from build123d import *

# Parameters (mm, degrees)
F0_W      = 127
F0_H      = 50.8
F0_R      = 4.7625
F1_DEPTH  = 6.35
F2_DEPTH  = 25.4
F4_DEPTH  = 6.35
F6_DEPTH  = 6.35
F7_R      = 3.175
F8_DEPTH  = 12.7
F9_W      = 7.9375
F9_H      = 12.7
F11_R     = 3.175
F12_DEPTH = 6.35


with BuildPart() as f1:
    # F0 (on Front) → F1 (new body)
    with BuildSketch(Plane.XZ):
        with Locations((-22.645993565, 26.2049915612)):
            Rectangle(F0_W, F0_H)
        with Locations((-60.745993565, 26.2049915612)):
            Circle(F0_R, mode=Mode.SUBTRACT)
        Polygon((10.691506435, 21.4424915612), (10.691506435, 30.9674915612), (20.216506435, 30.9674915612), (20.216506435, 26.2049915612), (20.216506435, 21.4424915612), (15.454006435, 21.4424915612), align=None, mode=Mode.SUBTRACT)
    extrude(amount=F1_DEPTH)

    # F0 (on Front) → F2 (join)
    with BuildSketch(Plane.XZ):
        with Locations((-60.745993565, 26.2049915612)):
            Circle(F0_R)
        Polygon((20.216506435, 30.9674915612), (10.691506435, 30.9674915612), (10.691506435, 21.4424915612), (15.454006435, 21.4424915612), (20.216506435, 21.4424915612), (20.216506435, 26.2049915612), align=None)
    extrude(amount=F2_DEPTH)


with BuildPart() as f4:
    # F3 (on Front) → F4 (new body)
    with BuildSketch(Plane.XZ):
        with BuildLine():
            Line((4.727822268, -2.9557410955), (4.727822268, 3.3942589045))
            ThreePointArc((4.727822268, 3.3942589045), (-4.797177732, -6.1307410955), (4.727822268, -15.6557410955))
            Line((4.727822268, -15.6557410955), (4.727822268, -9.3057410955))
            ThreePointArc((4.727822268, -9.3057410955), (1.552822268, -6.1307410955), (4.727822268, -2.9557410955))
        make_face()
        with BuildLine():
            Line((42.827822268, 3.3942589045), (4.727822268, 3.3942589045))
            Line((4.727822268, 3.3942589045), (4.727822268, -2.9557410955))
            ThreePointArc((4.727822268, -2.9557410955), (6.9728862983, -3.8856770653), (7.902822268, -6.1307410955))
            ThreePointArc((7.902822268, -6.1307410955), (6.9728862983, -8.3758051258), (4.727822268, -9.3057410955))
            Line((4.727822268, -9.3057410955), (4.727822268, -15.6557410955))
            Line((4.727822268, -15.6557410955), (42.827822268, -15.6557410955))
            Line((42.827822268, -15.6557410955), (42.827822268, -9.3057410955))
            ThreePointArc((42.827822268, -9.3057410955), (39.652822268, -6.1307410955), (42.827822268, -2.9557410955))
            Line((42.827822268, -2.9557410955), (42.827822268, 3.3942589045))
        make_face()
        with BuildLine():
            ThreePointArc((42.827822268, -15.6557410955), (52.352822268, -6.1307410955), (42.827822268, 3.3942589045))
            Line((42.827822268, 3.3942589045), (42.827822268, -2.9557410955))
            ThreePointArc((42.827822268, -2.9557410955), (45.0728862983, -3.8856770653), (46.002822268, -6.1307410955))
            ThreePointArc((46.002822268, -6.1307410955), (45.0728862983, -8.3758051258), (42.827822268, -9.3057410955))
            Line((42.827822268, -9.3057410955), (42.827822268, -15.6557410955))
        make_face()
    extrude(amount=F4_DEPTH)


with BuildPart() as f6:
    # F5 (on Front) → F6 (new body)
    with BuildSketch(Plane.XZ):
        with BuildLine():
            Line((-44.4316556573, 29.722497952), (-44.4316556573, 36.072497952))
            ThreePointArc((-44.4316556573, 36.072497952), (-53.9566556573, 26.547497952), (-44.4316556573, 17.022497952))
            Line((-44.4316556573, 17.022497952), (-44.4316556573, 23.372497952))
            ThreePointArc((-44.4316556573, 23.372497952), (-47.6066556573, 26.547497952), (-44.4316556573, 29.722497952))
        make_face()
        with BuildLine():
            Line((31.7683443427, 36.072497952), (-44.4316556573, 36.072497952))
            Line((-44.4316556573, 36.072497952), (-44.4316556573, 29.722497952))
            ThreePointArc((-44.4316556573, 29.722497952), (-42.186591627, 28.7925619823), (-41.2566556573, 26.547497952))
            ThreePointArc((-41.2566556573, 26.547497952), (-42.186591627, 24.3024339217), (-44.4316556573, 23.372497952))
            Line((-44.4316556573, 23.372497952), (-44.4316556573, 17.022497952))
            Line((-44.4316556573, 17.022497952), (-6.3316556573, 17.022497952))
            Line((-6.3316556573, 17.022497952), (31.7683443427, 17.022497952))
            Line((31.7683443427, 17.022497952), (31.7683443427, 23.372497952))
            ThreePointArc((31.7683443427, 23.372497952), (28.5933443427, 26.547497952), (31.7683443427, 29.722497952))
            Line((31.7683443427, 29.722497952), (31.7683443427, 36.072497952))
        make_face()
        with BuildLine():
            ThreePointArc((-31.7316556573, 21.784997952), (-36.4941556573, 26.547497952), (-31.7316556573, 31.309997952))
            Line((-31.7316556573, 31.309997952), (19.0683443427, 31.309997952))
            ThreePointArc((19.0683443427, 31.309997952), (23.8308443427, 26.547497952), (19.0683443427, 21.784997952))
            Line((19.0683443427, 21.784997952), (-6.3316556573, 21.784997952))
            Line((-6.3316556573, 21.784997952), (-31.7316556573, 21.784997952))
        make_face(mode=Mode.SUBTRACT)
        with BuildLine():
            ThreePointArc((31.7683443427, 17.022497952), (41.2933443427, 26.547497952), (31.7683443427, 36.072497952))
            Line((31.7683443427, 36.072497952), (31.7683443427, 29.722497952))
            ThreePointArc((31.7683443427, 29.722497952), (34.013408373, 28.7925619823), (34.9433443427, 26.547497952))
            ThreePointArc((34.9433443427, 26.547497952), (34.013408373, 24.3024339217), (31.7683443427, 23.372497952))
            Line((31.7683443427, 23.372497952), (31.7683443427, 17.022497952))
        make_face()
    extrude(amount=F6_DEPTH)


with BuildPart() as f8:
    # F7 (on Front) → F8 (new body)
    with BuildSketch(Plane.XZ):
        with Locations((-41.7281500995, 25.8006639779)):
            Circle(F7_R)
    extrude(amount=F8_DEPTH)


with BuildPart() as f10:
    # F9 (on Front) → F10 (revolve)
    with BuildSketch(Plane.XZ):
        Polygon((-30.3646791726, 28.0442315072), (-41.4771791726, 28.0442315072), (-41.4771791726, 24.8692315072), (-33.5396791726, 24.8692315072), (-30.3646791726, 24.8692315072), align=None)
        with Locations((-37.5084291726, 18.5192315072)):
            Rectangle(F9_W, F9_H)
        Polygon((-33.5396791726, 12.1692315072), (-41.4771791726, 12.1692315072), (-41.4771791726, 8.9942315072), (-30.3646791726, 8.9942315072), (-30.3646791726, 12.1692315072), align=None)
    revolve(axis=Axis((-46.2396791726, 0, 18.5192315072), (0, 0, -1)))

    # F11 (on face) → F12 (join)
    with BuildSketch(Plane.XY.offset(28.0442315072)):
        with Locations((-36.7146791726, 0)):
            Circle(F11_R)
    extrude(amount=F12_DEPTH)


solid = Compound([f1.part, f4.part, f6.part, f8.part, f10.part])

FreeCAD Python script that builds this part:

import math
import FreeCAD as App
import Part
import Sketcher

V = App.Vector
Q = App.Units.Quantity

doc = App.newDocument("Part")
body = doc.addObject("PartDesign::Body", "Body")

# Sketch on XZ plane
sketch1 = body.newObject("Sketcher::SketchObject", "Sketch")
sketch1.AttachmentSupport = (doc.getObject("XZ_Plane"), [""])
sketch1.MapMode = "FlatFace"
sketch1.addGeometry(Part.LineSegment(V(-86.1, 51.6, 0), V(-86.1, 0.8, 0)), False)
sketch1.addGeometry(Part.LineSegment(V(-86.1, 0.8, 0), V(40.9, 0.8, 0)), False)
sketch1.addGeometry(Part.LineSegment(V(40.9, 0.8, 0), V(40.9, 51.6, 0)), False)
sketch1.addGeometry(Part.LineSegment(V(40.9, 51.6, 0), V(-86.1, 51.6, 0)), False)
sketch1.addGeometry(Part.Circle(V(-60.7, 26.2, 0), V(0, 0, 1), 4.8), False)
sketch1.addGeometry(Part.LineSegment(V(20.2, 21.4, 0), V(10.7, 21.4, 0)), False)
sketch1.addGeometry(Part.LineSegment(V(10.7, 21.4, 0), V(10.7, 31, 0)), False)
sketch1.addGeometry(Part.LineSegment(V(10.7, 31, 0), V(20.2, 31, 0)), False)
sketch1.addGeometry(Part.LineSegment(V(20.2, 31, 0), V(20.2, 21.4, 0)), False)
sketch1.addConstraint(Sketcher.Constraint("Coincident", 0, 2, 1, 1))
sketch1.addConstraint(Sketcher.Constraint("Coincident", 1, 2, 2, 1))
sketch1.addConstraint(Sketcher.Constraint("Coincident", 2, 2, 3, 1))
sketch1.addConstraint(Sketcher.Constraint("Coincident", 3, 2, 0, 1))
sketch1.addConstraint(Sketcher.Constraint("Coincident", 5, 2, 6, 1))
sketch1.addConstraint(Sketcher.Constraint("Coincident", 6, 2, 7, 1))
sketch1.addConstraint(Sketcher.Constraint("Coincident", 7, 2, 8, 1))
sketch1.addConstraint(Sketcher.Constraint("Coincident", 8, 2, 5, 1))
sketch1.addConstraint(Sketcher.Constraint("Vertical", 0))
sketch1.addConstraint(Sketcher.Constraint("Horizontal", 1))
sketch1.addConstraint(Sketcher.Constraint("Vertical", 2))
sketch1.addConstraint(Sketcher.Constraint("Horizontal", 3))
sketch1.addConstraint(Sketcher.Constraint("Horizontal", 5))
sketch1.addConstraint(Sketcher.Constraint("Vertical", 6))
sketch1.addConstraint(Sketcher.Constraint("Horizontal", 7))
sketch1.addConstraint(Sketcher.Constraint("Vertical", 8))
sketch1.addConstraint(Sketcher.Constraint("Equal", 7, 6))
sketch1.addConstraint(Sketcher.Constraint("DistanceX", 1, 1, 1, 2, Q("5 in")))
sketch1.addConstraint(Sketcher.Constraint("DistanceY", 0, 2, 0, 1, Q("2 in")))
sketch1.addConstraint(Sketcher.Constraint("Diameter", 4, Q("0.375 in")))
sketch1.addConstraint(Sketcher.Constraint("DistanceX", 0, 2, 4, 3, Q("1 in")))
sketch1.addConstraint(Sketcher.Constraint("DistanceY", 0, 2, 4, 3, Q("1 in")))
sketch1.addConstraint(Sketcher.Constraint("DistanceX", 5, 2, 5, 1, Q("0.375 in")))
sketch1.addConstraint(Sketcher.Constraint("DistanceX", 5, 2, 1, 2, Q("1.1875 in")))
sketch1.addConstraint(Sketcher.Constraint("DistanceY", 1, 2, 5, 2, Q("0.8125 in")))
sketch1.addConstraint(Sketcher.Constraint("DistanceY", -1, 1, 4, 3, 26.204992))
sketch1.addConstraint(Sketcher.Constraint("DistanceX", 4, 3, -1, 1, 60.745994))
pad1 = body.newObject("PartDesign::Pad", "Pad")
pad1.Profile = sketch1
pad1.Length = Q("0.25 in")

# Sketch on XZ plane
sketch2 = body.newObject("Sketcher::SketchObject", "Sketch001")
sketch2.AttachmentSupport = (doc.getObject("XZ_Plane"), [""])
sketch2.MapMode = "FlatFace"
sketch2.addGeometry(Part.Circle(V(-60.7, 26.2, 0), V(0, 0, 1), 4.8), False)
sketch2.addGeometry(Part.LineSegment(V(20.2, 31, 0), V(10.7, 31, 0)), False)
sketch2.addGeometry(Part.LineSegment(V(10.7, 31, 0), V(10.7, 21.4, 0)), False)
sketch2.addGeometry(Part.LineSegment(V(10.7, 21.4, 0), V(20.2, 21.4, 0)), False)
sketch2.addGeometry(Part.LineSegment(V(20.2, 21.4, 0), V(20.2, 31, 0)), False)
sketch2.addConstraint(Sketcher.Constraint("Coincident", 1, 2, 2, 1))
sketch2.addConstraint(Sketcher.Constraint("Coincident", 2, 2, 3, 1))
sketch2.addConstraint(Sketcher.Constraint("Coincident", 3, 2, 4, 1))
sketch2.addConstraint(Sketcher.Constraint("Coincident", 4, 2, 1, 1))
sketch2.addConstraint(Sketcher.Constraint("Horizontal", 1))
sketch2.addConstraint(Sketcher.Constraint("Vertical", 2))
sketch2.addConstraint(Sketcher.Constraint("Horizontal", 3))
sketch2.addConstraint(Sketcher.Constraint("Vertical", 4))
sketch2.addConstraint(Sketcher.Constraint("Equal", 3, 2))
sketch2.addConstraint(Sketcher.Constraint("Diameter", 0, Q("0.375 in")))
sketch2.addConstraint(Sketcher.Constraint("DistanceX", 1, 2, 1, 1, Q("0.375 in")))
sketch2.addConstraint(Sketcher.Constraint("DistanceX", 0, 3, 1, 2, Q("2.8125 in")))
sketch2.addConstraint(Sketcher.Constraint("DistanceY", 0, 3, 1, 2, Q("0.1875 in")))
sketch2.addConstraint(Sketcher.Constraint("DistanceY", -1, 1, 0, 3, 26.204992))
sketch2.addConstraint(Sketcher.Constraint("DistanceX", 0, 3, -1, 1, 60.745994))
pad2 = body.newObject("PartDesign::Pad", "Pad001")
pad2.Profile = sketch2
pad2.Length = Q("1 in")
body2 = doc.addObject("PartDesign::Body", "Body001")

# Sketch on XZ plane
sketch3 = body2.newObject("Sketcher::SketchObject", "Sketch002")
sketch3.AttachmentSupport = (doc.getObject("XZ_Plane001"), [""])
sketch3.MapMode = "FlatFace"
sketch3.addGeometry(Part.ArcOfCircle(Part.Circle(V(4.7, -6.1, 0), V(0, 0, 1), 9.5), math.radians(90), math.radians(270)), False)
sketch3.addGeometry(Part.LineSegment(V(4.7, -15.7, 0), V(42.8, -15.7, 0)), False)
sketch3.addGeometry(Part.ArcOfCircle(Part.Circle(V(42.8, -6.1, 0), V(0, 0, 1), 9.5), math.radians(-90), math.radians(90)), False)
sketch3.addGeometry(Part.LineSegment(V(42.8, 3.4, 0), V(4.7, 3.4, 0)), False)
sketch3.addGeometry(Part.ArcOfCircle(Part.Circle(V(42.8, -6.1, 0), V(0, 0, 1), 3.2), math.radians(90), math.radians(270)), False)
sketch3.addGeometry(Part.ArcOfCircle(Part.Circle(V(42.8, -6.1, 0), V(0, 0, 1), 3.2), math.radians(0), math.radians(90)), False)
sketch3.addGeometry(Part.ArcOfCircle(Part.Circle(V(42.8, -6.1, 0), V(0, 0, 1), 3.2), math.radians(-90), math.radians(0)), False)
sketch3.addGeometry(Part.ArcOfCircle(Part.Circle(V(4.7, -6.1, 0), V(0, 0, 1), 3.2), math.radians(90), math.radians(270)), False)
sketch3.addGeometry(Part.ArcOfCircle(Part.Circle(V(4.7, -6.1, 0), V(0, 0, 1), 3.2), math.radians(0), math.radians(90)), False)
sketch3.addGeometry(Part.ArcOfCircle(Part.Circle(V(4.7, -6.1, 0), V(0, 0, 1), 3.2), math.radians(-90), math.radians(0)), False)
sketch3.addConstraint(Sketcher.Constraint("Tangent", 0, 2, 1, 1))
sketch3.addConstraint(Sketcher.Constraint("Tangent", 1, 2, 2, 1))
sketch3.addConstraint(Sketcher.Constraint("Tangent", 2, 2, 3, 1))
sketch3.addConstraint(Sketcher.Constraint("Tangent", 3, 2, 0, 1))
sketch3.addConstraint(Sketcher.Constraint("Tangent", 4, 1, 5, 2))
sketch3.addConstraint(Sketcher.Constraint("Tangent", 5, 1, 6, 2))
sketch3.addConstraint(Sketcher.Constraint("Tangent", 6, 1, 4, 2))
sketch3.addConstraint(Sketcher.Constraint("Tangent", 7, 1, 8, 2))
sketch3.addConstraint(Sketcher.Constraint("Tangent", 8, 1, 9, 2))
sketch3.addConstraint(Sketcher.Constraint("Tangent", 9, 1, 7, 2))
sketch3.addConstraint(Sketcher.Constraint("Horizontal", 1))
sketch3.addConstraint(Sketcher.Constraint("Horizontal", 3))
sketch3.addConstraint(Sketcher.Constraint("Coincident", 4, 3, 2, 3))
sketch3.addConstraint(Sketcher.Constraint("Coincident", 7, 3, 0, 3))
sketch3.addConstraint(Sketcher.Constraint("Equal", 6, 7))
sketch3.addConstraint(Sketcher.Constraint("Horizontal", 9, 3, 5, 1))
sketch3.addConstraint(Sketcher.Constraint("Horizontal", 5, 1, 8, 1))
sketch3.addConstraint(Sketcher.Constraint("Vertical", 2, 2, 4, 1))
sketch3.addConstraint(Sketcher.Constraint("Vertical", 4, 1, 6, 1))
sketch3.addConstraint(Sketcher.Constraint("Vertical", 3, 2, 7, 1))
sketch3.addConstraint(Sketcher.Constraint("Vertical", 7, 1, 9, 1))
sketch3.addConstraint(Sketcher.Constraint("DistanceX", 1, 1, 1, 2, Q("1.5 in")))
sketch3.addConstraint(Sketcher.Constraint("Radius", 0, Q("0.375 in")))
sketch3.addConstraint(Sketcher.Constraint("Radius", 4, Q("0.125 in")))
sketch3.addConstraint(Sketcher.Constraint("DistanceY", 0, 3, -1, 1, 6.130741))
sketch3.addConstraint(Sketcher.Constraint("DistanceX", -1, 1, 0, 3, 4.727822))
pad3 = body2.newObject("PartDesign::Pad", "Pad002")
pad3.Profile = sketch3
pad3.Length = Q("0.25 in")
body3 = doc.addObject("PartDesign::Body", "Body002")

# Sketch on XZ plane
sketch4 = body3.newObject("Sketcher::SketchObject", "Sketch003")
sketch4.AttachmentSupport = (doc.getObject("XZ_Plane002"), [""])
sketch4.MapMode = "FlatFace"
sketch4.addGeometry(Part.ArcOfCircle(Part.Circle(V(-44.4, 26.5, 0), V(0, 0, 1), 9.5), math.radians(90), math.radians(270)), False)
sketch4.addGeometry(Part.LineSegment(V(-44.4, 17, 0), V(31.8, 17, 0)), False)
sketch4.addGeometry(Part.ArcOfCircle(Part.Circle(V(31.8, 26.5, 0), V(0, 0, 1), 9.5), math.radians(-90), math.radians(90)), False)
sketch4.addGeometry(Part.LineSegment(V(31.8, 36.1, 0), V(-44.4, 36.1, 0)), False)
sketch4.addGeometry(Part.ArcOfCircle(Part.Circle(V(31.8, 26.5, 0), V(0, 0, 1), 3.2), math.radians(90), math.radians(270)), False)
sketch4.addGeometry(Part.ArcOfCircle(Part.Circle(V(31.8, 26.5, 0), V(0, 0, 1), 3.2), math.radians(0), math.radians(90)), False)
sketch4.addGeometry(Part.ArcOfCircle(Part.Circle(V(31.8, 26.5, 0), V(0, 0, 1), 3.2), math.radians(-90), math.radians(0)), False)
sketch4.addGeometry(Part.ArcOfCircle(Part.Circle(V(-44.4, 26.5, 0), V(0, 0, 1), 3.2), math.radians(90), math.radians(270)), False)
sketch4.addGeometry(Part.ArcOfCircle(Part.Circle(V(-44.4, 26.5, 0), V(0, 0, 1), 3.2), math.radians(0), math.radians(90)), False)
sketch4.addGeometry(Part.ArcOfCircle(Part.Circle(V(-44.4, 26.5, 0), V(0, 0, 1), 3.2), math.radians(-90), math.radians(0)), False)
sketch4.addGeometry(Part.LineSegment(V(19.1, 21.8, 0), V(-31.7, 21.8, 0)), False)
sketch4.addGeometry(Part.ArcOfCircle(Part.Circle(V(-31.7, 26.5, 0), V(0, 0, 1), 4.8), math.radians(90), math.radians(270)), False)
sketch4.addGeometry(Part.LineSegment(V(-31.7, 31.3, 0), V(19.1, 31.3, 0)), False)
sketch4.addGeometry(Part.ArcOfCircle(Part.Circle(V(19.1, 26.5, 0), V(0, 0, 1), 4.8), math.radians(-90), math.radians(90)), False)
sketch4.addConstraint(Sketcher.Constraint("Tangent", 0, 2, 1, 1))
sketch4.addConstraint(Sketcher.Constraint("Tangent", 1, 2, 2, 1))
sketch4.addConstraint(Sketcher.Constraint("Tangent", 2, 2, 3, 1))
sketch4.addConstraint(Sketcher.Constraint("Tangent", 3, 2, 0, 1))
sketch4.addConstraint(Sketcher.Constraint("Tangent", 4, 1, 5, 2))
sketch4.addConstraint(Sketcher.Constraint("Tangent", 5, 1, 6, 2))
sketch4.addConstraint(Sketcher.Constraint("Tangent", 6, 1, 4, 2))
sketch4.addConstraint(Sketcher.Constraint("Tangent", 7, 1, 8, 2))
sketch4.addConstraint(Sketcher.Constraint("Tangent", 8, 1, 9, 2))
sketch4.addConstraint(Sketcher.Constraint("Tangent", 9, 1, 7, 2))
sketch4.addConstraint(Sketcher.Constraint("Tangent", 10, 2, 11, 2))
sketch4.addConstraint(Sketcher.Constraint("Tangent", 11, 1, 12, 1))
sketch4.addConstraint(Sketcher.Constraint("Tangent", 12, 2, 13, 2))
sketch4.addConstraint(Sketcher.Constraint("Tangent", 13, 1, 10, 1))
sketch4.addConstraint(Sketcher.Constraint("Horizontal", 1))
sketch4.addConstraint(Sketcher.Constraint("Horizontal", 3))
sketch4.addConstraint(Sketcher.Constraint("Horizontal", 10))
sketch4.addConstraint(Sketcher.Constraint("Horizontal", 12))
sketch4.addConstraint(Sketcher.Constraint("Coincident", 4, 3, 2, 3))
sketch4.addConstraint(Sketcher.Constraint("Coincident", 7, 3, 0, 3))
sketch4.addConstraint(Sketcher.Constraint("Equal", 6, 7))
sketch4.addConstraint(Sketcher.Constraint("Horizontal", 9, 3, 11, 3))
sketch4.addConstraint(Sketcher.Constraint("Horizontal", 13, 3, 5, 1))
sketch4.addConstraint(Sketcher.Constraint("Horizontal", 5, 1, 8, 1))
sketch4.addConstraint(Sketcher.Constraint("Vertical", 2, 2, 4, 1))
sketch4.addConstraint(Sketcher.Constraint("Vertical", 4, 1, 6, 1))
sketch4.addConstraint(Sketcher.Constraint("Vertical", 3, 2, 7, 1))
sketch4.addConstraint(Sketcher.Constraint("Vertical", 7, 1, 9, 1))
sketch4.addConstraint(Sketcher.Constraint("DistanceX", 1, 1, 1, 2, Q("3 in")))
sketch4.addConstraint(Sketcher.Constraint("DistanceX", 10, 2, 10, 1, Q("2 in")))
sketch4.addConstraint(Sketcher.Constraint("Radius", 0, Q("0.375 in")))
sketch4.addConstraint(Sketcher.Constraint("Radius", 4, Q("0.125 in")))
sketch4.addConstraint(Sketcher.Constraint("Radius", 11, Q("0.1875 in")))
sketch4.addConstraint(Sketcher.Constraint("DistanceX", 0, 3, 11, 3, Q("0.5 in")))
sketch4.addConstraint(Sketcher.Constraint("DistanceX", 0, 3, -1, 1, 44.431656))
sketch4.addConstraint(Sketcher.Constraint("DistanceY", -1, 1, 0, 3, 26.547498))
pad4 = body3.newObject("PartDesign::Pad", "Pad003")
pad4.Profile = sketch4
pad4.Length = Q("0.25 in")
body4 = doc.addObject("PartDesign::Body", "Body003")

# Sketch on XZ plane
sketch5 = body4.newObject("Sketcher::SketchObject", "Sketch004")
sketch5.AttachmentSupport = (doc.getObject("XZ_Plane003"), [""])
sketch5.MapMode = "FlatFace"
sketch5.addGeometry(Part.Circle(V(-41.7, 25.8, 0), V(0, 0, 1), 3.2), False)
sketch5.addConstraint(Sketcher.Constraint("Diameter", 0, Q("0.25 in")))
sketch5.addConstraint(Sketcher.Constraint("DistanceX", 0, 3, -1, 1, 41.72815))
sketch5.addConstraint(Sketcher.Constraint("DistanceY", -1, 1, 0, 3, 25.800664))
pad5 = body4.newObject("PartDesign::Pad", "Pad004")
pad5.Profile = sketch5
pad5.Length = Q("0.5 in")
body5 = doc.addObject("PartDesign::Body", "Body004")

# Sketch on XZ plane
sketch6 = body5.newObject("Sketcher::SketchObject", "Sketch005")
sketch6.AttachmentSupport = (doc.getObject("XZ_Plane004"), [""])
sketch6.MapMode = "FlatFace"
sketch6.addGeometry(Part.LineSegment(V(-30.4, 28, 0), V(-41.5, 28, 0)), False)
sketch6.addGeometry(Part.LineSegment(V(-41.5, 28, 0), V(-41.5, 9, 0)), False)
sketch6.addGeometry(Part.LineSegment(V(-41.5, 9, 0), V(-30.4, 9, 0)), False)
sketch6.addGeometry(Part.LineSegment(V(-30.4, 9, 0), V(-30.4, 12.2, 0)), False)
sketch6.addGeometry(Part.LineSegment(V(-30.4, 12.2, 0), V(-33.5, 12.2, 0)), False)
sketch6.addGeometry(Part.LineSegment(V(-33.5, 12.2, 0), V(-33.5, 24.9, 0)), False)
sketch6.addGeometry(Part.LineSegment(V(-33.5, 24.9, 0), V(-30.4, 24.9, 0)), False)
sketch6.addGeometry(Part.LineSegment(V(-30.4, 24.9, 0), V(-30.4, 28, 0)), False)
sketch6.addGeometry(Part.LineSegment(V(-46.2, 28, 0), V(-46.2, 9, 0)), True)  # axis
sketch6.addConstraint(Sketcher.Constraint("Coincident", 0, 2, 1, 1))
sketch6.addConstraint(Sketcher.Constraint("Coincident", 1, 2, 2, 1))
sketch6.addConstraint(Sketcher.Constraint("Coincident", 2, 2, 3, 1))
sketch6.addConstraint(Sketcher.Constraint("Coincident", 3, 2, 4, 1))
sketch6.addConstraint(Sketcher.Constraint("Coincident", 4, 2, 5, 1))
sketch6.addConstraint(Sketcher.Constraint("Coincident", 5, 2, 6, 1))
sketch6.addConstraint(Sketcher.Constraint("Coincident", 6, 2, 7, 1))
sketch6.addConstraint(Sketcher.Constraint("Coincident", 7, 2, 0, 1))
sketch6.addConstraint(Sketcher.Constraint("Horizontal", 0))
sketch6.addConstraint(Sketcher.Constraint("Vertical", 1))
sketch6.addConstraint(Sketcher.Constraint("Horizontal", 2))
sketch6.addConstraint(Sketcher.Constraint("Vertical", 3))
sketch6.addConstraint(Sketcher.Constraint("Horizontal", 4))
sketch6.addConstraint(Sketcher.Constraint("Vertical", 5))
sketch6.addConstraint(Sketcher.Constraint("Horizontal", 6))
sketch6.addConstraint(Sketcher.Constraint("Vertical", 7))
sketch6.addConstraint(Sketcher.Constraint("Vertical", 8))
sketch6.addConstraint(Sketcher.Constraint("Horizontal", 7, 2, 8, 1))
sketch6.addConstraint(Sketcher.Constraint("Horizontal", 2, 2, 8, 2))
sketch6.addConstraint(Sketcher.Constraint("Vertical", 3, 2, 6, 2))
sketch6.addConstraint(Sketcher.Constraint("Equal", 6, 3))
sketch6.addConstraint(Sketcher.Constraint("Equal", 3, 7))
sketch6.addConstraint(Sketcher.Constraint("DistanceY", 5, 1, 5, 2, Q("0.5 in")))
sketch6.addConstraint(Sketcher.Constraint("DistanceY", 1, 2, 1, 1, Q("0.75 in")))
sketch6.addConstraint(Sketcher.Constraint("DistanceX", 8, 1, 5, 2, Q("0.5 in")))
sketch6.addConstraint(Sketcher.Constraint("DistanceX", 0, 2, 0, 1, Q("0.4375 in")))
sketch6.addConstraint(Sketcher.Constraint("DistanceX", 0, 2, -1, 1, 41.477179))
sketch6.addConstraint(Sketcher.Constraint("DistanceY", -1, 1, 0, 2, 28.044232))
revolution = body5.newObject("PartDesign::Revolution", "Revolution")
revolution.Profile = sketch6
revolution.ReferenceAxis = (sketch6, ["Axis0"])
revolution.Angle = 360

# Sketch on XY plane
sketch7 = body5.newObject("Sketcher::SketchObject", "Sketch006")
sketch7.AttachmentSupport = (doc.getObject("XY_Plane004"), [""])
sketch7.MapMode = "FlatFace"
sketch7.AttachmentOffset = App.Placement(V(0, 0, 28.044232), App.Rotation())
sketch7.addGeometry(Part.Circle(V(-36.7, 0, 0), V(0, 0, 1), 3.2), False)
sketch7.addConstraint(Sketcher.Constraint("PointOnObject", 0, 3, -1))
sketch7.addConstraint(Sketcher.Constraint("Diameter", 0, Q("0.25 in")))
sketch7.addConstraint(Sketcher.Constraint("DistanceX", 0, 3, -1, 1, 36.714679))
pad6 = body5.newObject("PartDesign::Pad", "Pad005")
pad6.Profile = sketch7
pad6.Length = Q("0.25 in")

doc.recompute()
